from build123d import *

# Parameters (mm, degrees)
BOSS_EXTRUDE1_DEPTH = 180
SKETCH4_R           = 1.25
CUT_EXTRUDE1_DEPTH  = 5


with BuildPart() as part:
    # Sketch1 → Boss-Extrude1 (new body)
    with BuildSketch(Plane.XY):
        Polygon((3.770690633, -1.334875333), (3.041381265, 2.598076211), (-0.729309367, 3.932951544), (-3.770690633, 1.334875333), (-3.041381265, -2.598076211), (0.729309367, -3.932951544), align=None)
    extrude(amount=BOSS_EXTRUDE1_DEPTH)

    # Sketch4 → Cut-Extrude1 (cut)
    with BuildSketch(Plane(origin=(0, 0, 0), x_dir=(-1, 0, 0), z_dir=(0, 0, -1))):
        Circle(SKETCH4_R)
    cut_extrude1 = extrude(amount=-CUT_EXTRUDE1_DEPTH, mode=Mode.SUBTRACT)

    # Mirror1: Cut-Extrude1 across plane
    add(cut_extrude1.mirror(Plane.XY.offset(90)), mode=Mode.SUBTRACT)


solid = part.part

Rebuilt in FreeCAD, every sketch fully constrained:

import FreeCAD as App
import Part
import Sketcher

V = App.Vector


def add_polygon(sketch, points):
    """Adds a closed chain of lines whose ends are joined by coincident constraints."""
    first, n = sketch.GeometryCount, len(points)
    for a, b in zip(points, points[1:] + points[:1]):
        sketch.addGeometry(Part.LineSegment(App.Vector(*a, 0), App.Vector(*b, 0)), False)
    for i in range(n):
        sketch.addConstraint(Sketcher.Constraint("Coincident", first + i, 2, first + (i + 1) % n, 1))

doc = App.newDocument("Part")
body = doc.addObject("PartDesign::Body", "Body")

# Sketch on XY plane
sketch1 = body.newObject("Sketcher::SketchObject", "Sketch")
sketch1.AttachmentSupport = (doc.getObject("XY_Plane"), [""])
sketch1.MapMode = "FlatFace"
add_polygon(sketch1, [(3.770691, -1.334875), (3.041381, 2.598076), (-0.729309, 3.932952), (-3.770691, 1.334875), (-3.041381, -2.598076), (0.729309, -3.932952)])  # lines 0-5
sketch1.addConstraint(Sketcher.Constraint("Symmetric", 0, 2, 3, 2, -1, 1))
sketch1.addConstraint(Sketcher.Constraint("Symmetric", 1, 2, 4, 2, -1, 1))
sketch1.addConstraint(Sketcher.Constraint("Symmetric", 2, 2, 5, 2, -1, 1))
sketch1.addConstraint(Sketcher.Constraint("Equal", 0, 1))
sketch1.addConstraint(Sketcher.Constraint("Equal", 1, 2))
sketch1.addConstraint(Sketcher.Constraint("Distance", 0, 4.0))
sketch1.addConstraint(Sketcher.Constraint("DistanceX", 2, 2, 4, 2, 4.5))
sketch1.addConstraint(Sketcher.Constraint("DistanceY", 2, 2, 0, 2, 1.263201))
sketch1.addConstraint(Sketcher.Constraint("DistanceX", -1, 1, 0, 2, 3.041381))
pad1 = body.newObject("PartDesign::Pad", "Pad")
pad1.Profile = sketch1
pad1.Length = 180

# Sketch on XY plane
sketch2 = body.newObject("Sketcher::SketchObject", "Sketch001")
sketch2.AttachmentSupport = (doc.getObject("XY_Plane"), [""])
sketch2.MapMode = "FlatFace"
sketch2.addGeometry(Part.Circle(V(0, 0, 0), V(0, 0, 1), 1.25), False)
sketch2.addConstraint(Sketcher.Constraint("Coincident", 0, 3, -1, 1))
sketch2.addConstraint(Sketcher.Constraint("Diameter", 0, 2.5))
pocket1 = body.newObject("PartDesign::Pocket", "Pocket")
pocket1.Profile = sketch2
pocket1.Length = 5
pocket1.Reversed = True
doc.recompute()

datumplane = body.newObject("PartDesign::Plane", "DatumPlane")
datumplane.AttachmentSupport = (doc.getObject("XY_Plane"), [""])
datumplane.MapMode = "FlatFace"
datumplane.AttachmentOffset = App.Placement(V(0, 0, 90), App.Rotation())
mirrored = body.newObject("PartDesign::Mirrored", "Mirrored")
mirrored.Originals = [pocket1]
mirrored.MirrorPlane = (datumplane, [""])
body.Tip = mirrored

doc.recompute()
